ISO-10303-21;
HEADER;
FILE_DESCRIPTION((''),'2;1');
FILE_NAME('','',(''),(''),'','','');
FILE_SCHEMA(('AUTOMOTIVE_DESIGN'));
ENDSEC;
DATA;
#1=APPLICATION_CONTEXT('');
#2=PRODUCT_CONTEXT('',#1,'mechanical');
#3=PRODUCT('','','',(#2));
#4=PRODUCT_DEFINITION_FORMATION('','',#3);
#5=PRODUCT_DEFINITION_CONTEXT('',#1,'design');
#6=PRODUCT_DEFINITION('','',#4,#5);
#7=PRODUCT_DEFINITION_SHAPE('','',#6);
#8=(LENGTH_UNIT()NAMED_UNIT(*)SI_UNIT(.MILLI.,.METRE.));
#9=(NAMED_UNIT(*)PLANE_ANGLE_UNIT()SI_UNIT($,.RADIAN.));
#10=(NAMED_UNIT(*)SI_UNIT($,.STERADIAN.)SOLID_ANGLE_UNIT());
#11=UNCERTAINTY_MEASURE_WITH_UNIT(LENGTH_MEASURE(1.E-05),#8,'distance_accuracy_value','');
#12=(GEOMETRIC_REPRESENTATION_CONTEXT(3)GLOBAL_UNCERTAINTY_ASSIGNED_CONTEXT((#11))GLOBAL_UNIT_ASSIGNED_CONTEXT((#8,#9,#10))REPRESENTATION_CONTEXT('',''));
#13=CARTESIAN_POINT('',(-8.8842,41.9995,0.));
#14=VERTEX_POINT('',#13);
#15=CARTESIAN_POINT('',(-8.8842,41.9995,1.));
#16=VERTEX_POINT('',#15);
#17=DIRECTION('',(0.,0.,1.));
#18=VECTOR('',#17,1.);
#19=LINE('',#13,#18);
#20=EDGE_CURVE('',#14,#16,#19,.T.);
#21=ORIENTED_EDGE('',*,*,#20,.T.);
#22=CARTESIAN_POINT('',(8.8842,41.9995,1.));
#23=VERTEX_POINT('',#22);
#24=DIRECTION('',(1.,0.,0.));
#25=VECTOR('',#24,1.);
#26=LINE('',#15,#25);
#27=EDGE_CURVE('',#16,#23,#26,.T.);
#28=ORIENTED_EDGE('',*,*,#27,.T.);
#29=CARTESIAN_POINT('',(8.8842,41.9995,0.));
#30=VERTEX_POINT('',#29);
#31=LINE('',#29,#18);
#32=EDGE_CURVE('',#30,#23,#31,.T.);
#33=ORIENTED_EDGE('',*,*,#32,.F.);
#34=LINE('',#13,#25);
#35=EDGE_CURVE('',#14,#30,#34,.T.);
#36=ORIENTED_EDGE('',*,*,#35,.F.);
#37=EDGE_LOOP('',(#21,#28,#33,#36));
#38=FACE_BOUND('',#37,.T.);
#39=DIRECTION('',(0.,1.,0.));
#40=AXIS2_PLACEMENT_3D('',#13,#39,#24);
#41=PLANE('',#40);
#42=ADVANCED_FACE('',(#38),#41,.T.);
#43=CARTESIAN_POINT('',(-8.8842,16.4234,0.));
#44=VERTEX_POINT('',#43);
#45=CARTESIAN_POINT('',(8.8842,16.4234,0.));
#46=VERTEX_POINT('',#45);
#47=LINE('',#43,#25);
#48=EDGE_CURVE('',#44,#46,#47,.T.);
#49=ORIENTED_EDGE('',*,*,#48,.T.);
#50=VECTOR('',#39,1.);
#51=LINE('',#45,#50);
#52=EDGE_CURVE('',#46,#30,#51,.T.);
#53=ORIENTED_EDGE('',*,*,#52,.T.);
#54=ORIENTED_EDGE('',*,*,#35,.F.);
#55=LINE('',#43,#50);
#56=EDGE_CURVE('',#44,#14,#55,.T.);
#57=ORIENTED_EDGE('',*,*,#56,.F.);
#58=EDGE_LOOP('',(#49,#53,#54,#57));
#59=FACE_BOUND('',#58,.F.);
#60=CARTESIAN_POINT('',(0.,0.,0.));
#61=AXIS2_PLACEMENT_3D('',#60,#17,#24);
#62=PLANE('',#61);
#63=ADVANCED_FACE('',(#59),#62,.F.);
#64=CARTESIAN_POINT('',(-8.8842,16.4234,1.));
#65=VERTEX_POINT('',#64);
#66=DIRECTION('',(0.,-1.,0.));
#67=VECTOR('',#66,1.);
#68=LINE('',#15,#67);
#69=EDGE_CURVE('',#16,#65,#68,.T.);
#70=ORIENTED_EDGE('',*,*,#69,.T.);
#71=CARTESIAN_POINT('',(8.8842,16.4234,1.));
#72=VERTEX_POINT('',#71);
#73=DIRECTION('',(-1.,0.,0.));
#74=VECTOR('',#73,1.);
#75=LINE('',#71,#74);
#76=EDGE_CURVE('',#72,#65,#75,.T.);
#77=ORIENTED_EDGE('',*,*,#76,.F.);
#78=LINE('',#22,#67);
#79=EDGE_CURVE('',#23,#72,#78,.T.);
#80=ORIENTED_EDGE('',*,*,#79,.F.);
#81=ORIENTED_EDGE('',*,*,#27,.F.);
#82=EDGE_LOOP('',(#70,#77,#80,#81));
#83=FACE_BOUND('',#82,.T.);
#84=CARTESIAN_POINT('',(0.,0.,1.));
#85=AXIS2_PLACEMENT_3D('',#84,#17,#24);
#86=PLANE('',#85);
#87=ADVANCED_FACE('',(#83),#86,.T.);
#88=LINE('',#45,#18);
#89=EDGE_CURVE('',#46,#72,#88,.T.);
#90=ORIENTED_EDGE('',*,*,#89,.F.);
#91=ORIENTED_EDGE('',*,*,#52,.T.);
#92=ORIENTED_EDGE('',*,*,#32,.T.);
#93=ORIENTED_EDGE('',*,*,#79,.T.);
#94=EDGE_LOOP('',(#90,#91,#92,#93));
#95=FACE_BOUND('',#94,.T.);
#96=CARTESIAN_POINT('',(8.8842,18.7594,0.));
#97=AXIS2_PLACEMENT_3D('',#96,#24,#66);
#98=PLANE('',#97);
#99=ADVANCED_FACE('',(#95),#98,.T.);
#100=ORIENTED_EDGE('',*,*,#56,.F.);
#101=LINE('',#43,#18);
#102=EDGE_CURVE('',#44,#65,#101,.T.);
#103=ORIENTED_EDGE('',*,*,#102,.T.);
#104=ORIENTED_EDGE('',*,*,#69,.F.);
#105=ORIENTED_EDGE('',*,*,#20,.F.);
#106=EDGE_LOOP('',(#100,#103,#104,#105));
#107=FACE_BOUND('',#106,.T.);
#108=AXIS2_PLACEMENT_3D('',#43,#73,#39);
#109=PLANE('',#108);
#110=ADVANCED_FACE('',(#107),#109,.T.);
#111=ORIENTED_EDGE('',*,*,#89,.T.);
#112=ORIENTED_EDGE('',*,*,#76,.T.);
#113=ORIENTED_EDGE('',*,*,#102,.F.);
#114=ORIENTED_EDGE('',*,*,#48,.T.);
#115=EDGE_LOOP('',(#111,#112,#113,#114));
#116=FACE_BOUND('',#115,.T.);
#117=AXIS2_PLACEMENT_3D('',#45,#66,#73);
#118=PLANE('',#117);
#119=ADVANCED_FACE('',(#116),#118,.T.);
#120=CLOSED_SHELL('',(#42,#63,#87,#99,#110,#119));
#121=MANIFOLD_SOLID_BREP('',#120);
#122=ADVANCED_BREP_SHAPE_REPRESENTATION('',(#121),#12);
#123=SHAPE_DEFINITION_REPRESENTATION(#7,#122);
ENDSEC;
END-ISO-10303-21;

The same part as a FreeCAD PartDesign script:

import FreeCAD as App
import Part
import Sketcher

V = App.Vector
Q = App.Units.Quantity

doc = App.newDocument("Part")
body = doc.addObject("PartDesign::Body", "Body")

# Sketch on XY plane
sketch1 = doc.addObject("Sketcher::SketchObject", "Sketch")
body.addObject(sketch1)
sketch1.AttachmentSupport = (doc.XY_Plane, [""])
sketch1.MapMode = "FlatFace"
sketch1.addGeometry([
    Part.LineSegment(V(9, 16, 0), V(9, 42, 0)),
    Part.LineSegment(V(9, 42, 0), V(-9, 42, 0)),
    Part.LineSegment(V(-9, 42, 0), V(-9, 16, 0)),
    Part.LineSegment(V(-9, 16, 0), V(9, 16, 0)),
], False)
sketch1.addConstraint([
    Sketcher.Constraint("Coincident", 0, 2, 1, 1),
    Sketcher.Constraint("Coincident", 1, 2, 2, 1),
    Sketcher.Constraint("Coincident", 2, 2, 3, 1),
    Sketcher.Constraint("Coincident", 3, 2, 0, 1),
    Sketcher.Constraint("Vertical", 0),
    Sketcher.Constraint("Horizontal", 1),
    Sketcher.Constraint("Vertical", 2),
    Sketcher.Constraint("Horizontal", 3),
    Sketcher.Constraint("DistanceY", 0, 1, 0, 2, Q("25.576 mm")),
    Sketcher.Constraint("DistanceX", 1, 2, 1, 1, Q("17.7684 mm")),
    Sketcher.Constraint("DistanceX", -1, 1, 0, 2, Q("8.8842 mm")),
    Sketcher.Constraint("DistanceY", -1, 1, 0, 2, Q("41.9995 mm")),
])
pad1 = doc.addObject("PartDesign::Pad", "Pad")
body.addObject(pad1)
pad1.Profile = sketch1
pad1.Length = 1

doc.recompute()
